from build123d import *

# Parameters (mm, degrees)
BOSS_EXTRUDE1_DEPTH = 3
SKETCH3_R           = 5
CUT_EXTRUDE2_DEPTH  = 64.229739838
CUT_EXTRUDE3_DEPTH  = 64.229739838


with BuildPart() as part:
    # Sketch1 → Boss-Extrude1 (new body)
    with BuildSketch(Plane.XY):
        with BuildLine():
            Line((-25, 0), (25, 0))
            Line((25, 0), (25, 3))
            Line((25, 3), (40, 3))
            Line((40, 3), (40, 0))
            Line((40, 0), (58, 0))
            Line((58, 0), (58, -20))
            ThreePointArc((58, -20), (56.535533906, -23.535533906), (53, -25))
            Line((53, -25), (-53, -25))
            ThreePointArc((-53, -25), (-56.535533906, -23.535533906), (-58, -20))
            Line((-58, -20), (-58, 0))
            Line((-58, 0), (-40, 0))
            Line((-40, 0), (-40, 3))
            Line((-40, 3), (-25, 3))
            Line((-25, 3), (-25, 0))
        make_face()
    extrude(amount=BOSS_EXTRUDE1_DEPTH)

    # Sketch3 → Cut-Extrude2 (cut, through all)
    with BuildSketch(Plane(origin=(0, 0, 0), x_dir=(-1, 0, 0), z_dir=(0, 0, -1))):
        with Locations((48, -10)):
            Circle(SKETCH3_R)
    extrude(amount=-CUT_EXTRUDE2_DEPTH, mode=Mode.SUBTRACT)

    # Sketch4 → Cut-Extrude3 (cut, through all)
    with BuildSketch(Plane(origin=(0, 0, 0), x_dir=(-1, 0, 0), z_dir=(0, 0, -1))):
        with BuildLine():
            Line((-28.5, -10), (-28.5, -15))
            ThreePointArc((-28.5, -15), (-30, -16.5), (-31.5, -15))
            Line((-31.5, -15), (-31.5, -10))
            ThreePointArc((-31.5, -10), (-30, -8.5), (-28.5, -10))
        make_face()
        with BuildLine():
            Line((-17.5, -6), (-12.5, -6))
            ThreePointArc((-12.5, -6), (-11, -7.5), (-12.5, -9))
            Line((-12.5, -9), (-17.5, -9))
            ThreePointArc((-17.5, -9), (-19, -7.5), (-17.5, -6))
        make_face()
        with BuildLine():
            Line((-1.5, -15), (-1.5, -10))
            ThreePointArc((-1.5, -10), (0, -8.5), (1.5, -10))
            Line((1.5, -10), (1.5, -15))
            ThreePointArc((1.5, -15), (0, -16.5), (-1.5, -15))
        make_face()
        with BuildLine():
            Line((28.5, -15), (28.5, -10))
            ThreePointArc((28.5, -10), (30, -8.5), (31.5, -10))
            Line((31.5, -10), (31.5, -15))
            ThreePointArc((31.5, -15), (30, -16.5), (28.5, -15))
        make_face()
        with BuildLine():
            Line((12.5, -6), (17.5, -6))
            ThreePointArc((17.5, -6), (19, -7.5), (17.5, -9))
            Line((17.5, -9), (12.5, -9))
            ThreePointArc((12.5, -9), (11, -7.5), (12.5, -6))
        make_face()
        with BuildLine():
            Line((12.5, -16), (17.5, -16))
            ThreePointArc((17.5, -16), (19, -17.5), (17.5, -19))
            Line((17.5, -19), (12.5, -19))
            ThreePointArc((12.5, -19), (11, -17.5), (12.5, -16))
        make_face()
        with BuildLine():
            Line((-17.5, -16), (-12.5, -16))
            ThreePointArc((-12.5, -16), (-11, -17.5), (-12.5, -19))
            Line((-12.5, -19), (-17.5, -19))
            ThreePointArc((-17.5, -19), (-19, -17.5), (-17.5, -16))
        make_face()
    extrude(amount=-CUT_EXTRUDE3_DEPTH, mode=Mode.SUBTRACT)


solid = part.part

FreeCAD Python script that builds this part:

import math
import FreeCAD as App
import Part
import Sketcher

V = App.Vector
Q = App.Units.Quantity

doc = App.newDocument("Part")
body = doc.addObject("PartDesign::Body", "Body")

sketch1 = body.newObject("Sketcher::SketchObject", "Sketch")
sketch1.AttachmentSupport = (doc.getObject("XY_Plane"), [""])
sketch1.MapMode = "FlatFace"
sketch1.addGeometry([
    Part.LineSegment(V(25, 0, 0), V(-25, 0, 0)),
    Part.LineSegment(V(-25, 0, 0), V(-25, 3, 0)),
    Part.LineSegment(V(-25, 3, 0), V(-40, 3, 0)),
    Part.LineSegment(V(-40, 3, 0), V(-40, 0, 0)),
    Part.LineSegment(V(-40, 0, 0), V(-58, 0, 0)),
    Part.LineSegment(V(-58, 0, 0), V(-58, -20, 0)),
    Part.ArcOfCircle(Part.Circle(V(-53, -20, 0), V(0, 0, 1), 5), math.radians(180), math.radians(270)),
    Part.LineSegment(V(-53, -25, 0), V(53, -25, 0)),
    Part.ArcOfCircle(Part.Circle(V(53, -20, 0), V(0, 0, 1), 5), math.radians(-90), math.radians(0)),
    Part.LineSegment(V(58, -20, 0), V(58, 0, 0)),
    Part.LineSegment(V(58, 0, 0), V(40, 0, 0)),
    Part.LineSegment(V(40, 0, 0), V(40, 3, 0)),
    Part.LineSegment(V(40, 3, 0), V(25, 3, 0)),
    Part.LineSegment(V(25, 3, 0), V(25, 0, 0)),
], False)
sketch1.addConstraint([
    Sketcher.Constraint("Coincident", 0, 2, 1, 1),
    Sketcher.Constraint("Coincident", 1, 2, 2, 1),
    Sketcher.Constraint("Coincident", 2, 2, 3, 1),
    Sketcher.Constraint("Coincident", 3, 2, 4, 1),
    Sketcher.Constraint("Coincident", 4, 2, 5, 1),
    Sketcher.Constraint("Tangent", 5, 2, 6, 1),
    Sketcher.Constraint("Tangent", 6, 2, 7, 1),
    Sketcher.Constraint("Tangent", 7, 2, 8, 1),
    Sketcher.Constraint("Tangent", 8, 2, 9, 1),
    Sketcher.Constraint("Coincident", 9, 2, 10, 1),
    Sketcher.Constraint("Coincident", 10, 2, 11, 1),
    Sketcher.Constraint("Coincident", 11, 2, 12, 1),
    Sketcher.Constraint("Coincident", 12, 2, 13, 1),
    Sketcher.Constraint("Coincident", 13, 2, 0, 1),
    Sketcher.Constraint("Horizontal", 0),
    Sketcher.Constraint("Vertical", 1),
    Sketcher.Constraint("Horizontal", 2),
    Sketcher.Constraint("Vertical", 3),
    Sketcher.Constraint("Horizontal", 4),
    Sketcher.Constraint("Vertical", 5),
    Sketcher.Constraint("Horizontal", 7),
    Sketcher.Constraint("Vertical", 9),
    Sketcher.Constraint("Horizontal", 10),
    Sketcher.Constraint("Vertical", 11),
    Sketcher.Constraint("Horizontal", 12),
    Sketcher.Constraint("Vertical", 13),
    Sketcher.Constraint("Equal", 6, 8),
    Sketcher.Constraint("Symmetric", 4, 2, 9, 2, -1, 1),
    Sketcher.Constraint("Symmetric", 0, 2, 13, 2, -1, 1),
    Sketcher.Constraint("Symmetric", 3, 2, 10, 2, -2),
    Sketcher.Constraint("Horizontal", 2, 2, 11, 2),
    Sketcher.Constraint("Radius", 6, Q("5 mm")),
    Sketcher.Constraint("DistanceX", 0, 2, 0, 1, Q("50 mm")),
    Sketcher.Constraint("DistanceX", 2, 2, 2, 1, Q("15 mm")),
    Sketcher.Constraint("DistanceX", 4, 2, 4, 1, Q("18 mm")),
    Sketcher.Constraint("DistanceY", 1, 1, 1, 2, Q("3 mm")),
    Sketcher.Constraint("DistanceY", 5, 2, 5, 1, Q("20 mm")),
])
pad1 = body.newObject("PartDesign::Pad", "Pad")
pad1.Profile = sketch1
pad1.Length = 3

sketch2 = body.newObject("Sketcher::SketchObject", "Sketch001")
sketch2.AttachmentSupport = (doc.getObject("XY_Plane"), [""])
sketch2.MapMode = "FlatFace"
sketch2.addGeometry(Part.Circle(V(-48, -10, 0), V(0, 0, 1), 5), False)
sketch2.addConstraint([
    Sketcher.Constraint("Diameter", 0, Q("10 mm")),
    Sketcher.Constraint("DistanceX", 0, 3, -1, 1, Q("48 mm")),
    Sketcher.Constraint("DistanceY", 0, 3, -1, 1, Q("10 mm")),
])
pocket1 = body.newObject("PartDesign::Pocket", "Pocket")
pocket1.Profile = sketch2
pocket1.Type = "ThroughAll"
pocket1.Reversed = True

sketch3 = body.newObject("Sketcher::SketchObject", "Sketch002")
sketch3.AttachmentSupport = (doc.getObject("XY_Plane"), [""])
sketch3.MapMode = "FlatFace"
sketch3.addGeometry([
    Part.LineSegment(V(28.5, -15, 0), V(28.5, -10, 0)),
    Part.ArcOfCircle(Part.Circle(V(30, -10, 0), V(0, 0, 1), 1.5), math.radians(0), math.radians(180)),
    Part.LineSegment(V(31.5, -10, 0), V(31.5, -15, 0)),
    Part.ArcOfCircle(Part.Circle(V(30, -15, 0), V(0, 0, 1), 1.5), math.radians(180), math.radians(360)),
    Part.LineSegment(V(12.5, -6, 0), V(17.5, -6, 0)),
    Part.ArcOfCircle(Part.Circle(V(17.5, -7.5, 0), V(0, 0, 1), 1.5), math.radians(-90), math.radians(90)),
    Part.LineSegment(V(17.5, -9, 0), V(12.5, -9, 0)),
    Part.ArcOfCircle(Part.Circle(V(12.5, -7.5, 0), V(0, 0, 1), 1.5), math.radians(90), math.radians(270)),
    Part.LineSegment(V(1.5, -10, 0), V(1.5, -15, 0)),
    Part.ArcOfCircle(Part.Circle(V(0, -15, 0), V(0, 0, 1), 1.5), math.radians(180), math.radians(360)),
    Part.LineSegment(V(-1.5, -15, 0), V(-1.5, -10, 0)),
    Part.ArcOfCircle(Part.Circle(V(0, -10, 0), V(0, 0, 1), 1.5), math.radians(0), math.radians(180)),
    Part.LineSegment(V(-28.5, -10, 0), V(-28.5, -15, 0)),
    Part.ArcOfCircle(Part.Circle(V(-30, -15, 0), V(0, 0, 1), 1.5), math.radians(180), math.radians(360)),
    Part.LineSegment(V(-31.5, -15, 0), V(-31.5, -10, 0)),
    Part.ArcOfCircle(Part.Circle(V(-30, -10, 0), V(0, 0, 1), 1.5), math.radians(0), math.radians(180)),
    Part.LineSegment(V(-17.5, -6, 0), V(-12.5, -6, 0)),
    Part.ArcOfCircle(Part.Circle(V(-12.5, -7.5, 0), V(0, 0, 1), 1.5), math.radians(-90), math.radians(90)),
    Part.LineSegment(V(-12.5, -9, 0), V(-17.5, -9, 0)),
    Part.ArcOfCircle(Part.Circle(V(-17.5, -7.5, 0), V(0, 0, 1), 1.5), math.radians(90), math.radians(270)),
    Part.LineSegment(V(-17.5, -16, 0), V(-12.5, -16, 0)),
    Part.ArcOfCircle(Part.Circle(V(-12.5, -17.5, 0), V(0, 0, 1), 1.5), math.radians(-90), math.radians(90)),
    Part.LineSegment(V(-12.5, -19, 0), V(-17.5, -19, 0)),
    Part.ArcOfCircle(Part.Circle(V(-17.5, -17.5, 0), V(0, 0, 1), 1.5), math.radians(90), math.radians(270)),
    Part.LineSegment(V(12.5, -16, 0), V(17.5, -16, 0)),
    Part.ArcOfCircle(Part.Circle(V(17.5, -17.5, 0), V(0, 0, 1), 1.5), math.radians(-90), math.radians(90)),
    Part.LineSegment(V(17.5, -19, 0), V(12.5, -19, 0)),
    Part.ArcOfCircle(Part.Circle(V(12.5, -17.5, 0), V(0, 0, 1), 1.5), math.radians(90), math.radians(270)),
], False)
sketch3.addConstraint([
    Sketcher.Constraint("Tangent", 0, 2, 1, 2),
    Sketcher.Constraint("Tangent", 1, 1, 2, 1),
    Sketcher.Constraint("Tangent", 2, 2, 3, 2),
    Sketcher.Constraint("Tangent", 3, 1, 0, 1),
    Sketcher.Constraint("Tangent", 4, 2, 5, 2),
    Sketcher.Constraint("Tangent", 5, 1, 6, 1),
    Sketcher.Constraint("Tangent", 6, 2, 7, 2),
    Sketcher.Constraint("Tangent", 7, 1, 4, 1),
    Sketcher.Constraint("Tangent", 8, 2, 9, 2),
    Sketcher.Constraint("Tangent", 9, 1, 10, 1),
    Sketcher.Constraint("Tangent", 10, 2, 11, 2),
    Sketcher.Constraint("Tangent", 11, 1, 8, 1),
    Sketcher.Constraint("Tangent", 12, 2, 13, 2),
    Sketcher.Constraint("Tangent", 13, 1, 14, 1),
    Sketcher.Constraint("Tangent", 14, 2, 15, 2),
    Sketcher.Constraint("Tangent", 15, 1, 12, 1),
    Sketcher.Constraint("Tangent", 16, 2, 17, 2),
    Sketcher.Constraint("Tangent", 17, 1, 18, 1),
    Sketcher.Constraint("Tangent", 18, 2, 19, 2),
    Sketcher.Constraint("Tangent", 19, 1, 16, 1),
    Sketcher.Constraint("Tangent", 20, 2, 21, 2),
    Sketcher.Constraint("Tangent", 21, 1, 22, 1),
    Sketcher.Constraint("Tangent", 22, 2, 23, 2),
    Sketcher.Constraint("Tangent", 23, 1, 20, 1),
    Sketcher.Constraint("Tangent", 24, 2, 25, 2),
    Sketcher.Constraint("Tangent", 25, 1, 26, 1),
    Sketcher.Constraint("Tangent", 26, 2, 27, 2),
    Sketcher.Constraint("Tangent", 27, 1, 24, 1),
    Sketcher.Constraint("Vertical", 0),
    Sketcher.Constraint("Vertical", 2),
    Sketcher.Constraint("Horizontal", 4),
    Sketcher.Constraint("Horizontal", 6),
    Sketcher.Constraint("Vertical", 8),
    Sketcher.Constraint("Vertical", 10),
    Sketcher.Constraint("Vertical", 12),
    Sketcher.Constraint("Vertical", 14),
    Sketcher.Constraint("Horizontal", 16),
    Sketcher.Constraint("Horizontal", 18),
    Sketcher.Constraint("Horizontal", 20),
    Sketcher.Constraint("Horizontal", 22),
    Sketcher.Constraint("Horizontal", 24),
    Sketcher.Constraint("Horizontal", 26),
    Sketcher.Constraint("Equal", 3, 5),
    Sketcher.Constraint("Equal", 7, 9),
    Sketcher.Constraint("Equal", 11, 13),
    Sketcher.Constraint("Equal", 15, 17),
    Sketcher.Constraint("Equal", 19, 21),
    Sketcher.Constraint("Equal", 23, 25),
    Sketcher.Constraint("Symmetric", 3, 3, 13, 3, -2),
    Sketcher.Constraint("Symmetric", 7, 3, 17, 3, -2),
    Sketcher.Constraint("Symmetric", 23, 3, 25, 3, -2),
    Sketcher.Constraint("PointOnObject", 9, 3, -2),
    Sketcher.Constraint("Horizontal", 3, 3, 9, 3),
    Sketcher.Constraint("Horizontal", 1, 3, 11, 3),
    Sketcher.Constraint("Horizontal", 11, 3, 15, 3),
    Sketcher.Constraint("Vertical", 17, 3, 21, 3),
    Sketcher.Constraint("Vertical", 19, 3, 23, 3),
    Sketcher.Constraint("Vertical", 5, 3, 25, 3),
    Sketcher.Constraint("Vertical", 7, 3, 27, 3),
    Sketcher.Constraint("Equal", 26, 0),
    Sketcher.Constraint("Radius", 1, Q("1.5 mm")),
    Sketcher.Constraint("DistanceX", 4, 1, 4, 2, Q("5 mm")),
    Sketcher.Constraint("DistanceX", -1, 1, 1, 3, Q("30 mm")),
    Sketcher.Constraint("DistanceY", 1, 3, -1, 1, Q("10 mm")),
    Sketcher.Constraint("DistanceY", 4, 2, -1, 1, Q("6 mm")),
    Sketcher.Constraint("DistanceY", 20, 2, -1, 1, Q("16 mm")),
    Sketcher.Constraint("DistanceX", 17, 3, 7, 3, Q("25 mm")),
])
pocket2 = body.newObject("PartDesign::Pocket", "Pocket001")
pocket2.Profile = sketch3
pocket2.Type = "ThroughAll"
pocket2.Reversed = True

doc.recompute()
